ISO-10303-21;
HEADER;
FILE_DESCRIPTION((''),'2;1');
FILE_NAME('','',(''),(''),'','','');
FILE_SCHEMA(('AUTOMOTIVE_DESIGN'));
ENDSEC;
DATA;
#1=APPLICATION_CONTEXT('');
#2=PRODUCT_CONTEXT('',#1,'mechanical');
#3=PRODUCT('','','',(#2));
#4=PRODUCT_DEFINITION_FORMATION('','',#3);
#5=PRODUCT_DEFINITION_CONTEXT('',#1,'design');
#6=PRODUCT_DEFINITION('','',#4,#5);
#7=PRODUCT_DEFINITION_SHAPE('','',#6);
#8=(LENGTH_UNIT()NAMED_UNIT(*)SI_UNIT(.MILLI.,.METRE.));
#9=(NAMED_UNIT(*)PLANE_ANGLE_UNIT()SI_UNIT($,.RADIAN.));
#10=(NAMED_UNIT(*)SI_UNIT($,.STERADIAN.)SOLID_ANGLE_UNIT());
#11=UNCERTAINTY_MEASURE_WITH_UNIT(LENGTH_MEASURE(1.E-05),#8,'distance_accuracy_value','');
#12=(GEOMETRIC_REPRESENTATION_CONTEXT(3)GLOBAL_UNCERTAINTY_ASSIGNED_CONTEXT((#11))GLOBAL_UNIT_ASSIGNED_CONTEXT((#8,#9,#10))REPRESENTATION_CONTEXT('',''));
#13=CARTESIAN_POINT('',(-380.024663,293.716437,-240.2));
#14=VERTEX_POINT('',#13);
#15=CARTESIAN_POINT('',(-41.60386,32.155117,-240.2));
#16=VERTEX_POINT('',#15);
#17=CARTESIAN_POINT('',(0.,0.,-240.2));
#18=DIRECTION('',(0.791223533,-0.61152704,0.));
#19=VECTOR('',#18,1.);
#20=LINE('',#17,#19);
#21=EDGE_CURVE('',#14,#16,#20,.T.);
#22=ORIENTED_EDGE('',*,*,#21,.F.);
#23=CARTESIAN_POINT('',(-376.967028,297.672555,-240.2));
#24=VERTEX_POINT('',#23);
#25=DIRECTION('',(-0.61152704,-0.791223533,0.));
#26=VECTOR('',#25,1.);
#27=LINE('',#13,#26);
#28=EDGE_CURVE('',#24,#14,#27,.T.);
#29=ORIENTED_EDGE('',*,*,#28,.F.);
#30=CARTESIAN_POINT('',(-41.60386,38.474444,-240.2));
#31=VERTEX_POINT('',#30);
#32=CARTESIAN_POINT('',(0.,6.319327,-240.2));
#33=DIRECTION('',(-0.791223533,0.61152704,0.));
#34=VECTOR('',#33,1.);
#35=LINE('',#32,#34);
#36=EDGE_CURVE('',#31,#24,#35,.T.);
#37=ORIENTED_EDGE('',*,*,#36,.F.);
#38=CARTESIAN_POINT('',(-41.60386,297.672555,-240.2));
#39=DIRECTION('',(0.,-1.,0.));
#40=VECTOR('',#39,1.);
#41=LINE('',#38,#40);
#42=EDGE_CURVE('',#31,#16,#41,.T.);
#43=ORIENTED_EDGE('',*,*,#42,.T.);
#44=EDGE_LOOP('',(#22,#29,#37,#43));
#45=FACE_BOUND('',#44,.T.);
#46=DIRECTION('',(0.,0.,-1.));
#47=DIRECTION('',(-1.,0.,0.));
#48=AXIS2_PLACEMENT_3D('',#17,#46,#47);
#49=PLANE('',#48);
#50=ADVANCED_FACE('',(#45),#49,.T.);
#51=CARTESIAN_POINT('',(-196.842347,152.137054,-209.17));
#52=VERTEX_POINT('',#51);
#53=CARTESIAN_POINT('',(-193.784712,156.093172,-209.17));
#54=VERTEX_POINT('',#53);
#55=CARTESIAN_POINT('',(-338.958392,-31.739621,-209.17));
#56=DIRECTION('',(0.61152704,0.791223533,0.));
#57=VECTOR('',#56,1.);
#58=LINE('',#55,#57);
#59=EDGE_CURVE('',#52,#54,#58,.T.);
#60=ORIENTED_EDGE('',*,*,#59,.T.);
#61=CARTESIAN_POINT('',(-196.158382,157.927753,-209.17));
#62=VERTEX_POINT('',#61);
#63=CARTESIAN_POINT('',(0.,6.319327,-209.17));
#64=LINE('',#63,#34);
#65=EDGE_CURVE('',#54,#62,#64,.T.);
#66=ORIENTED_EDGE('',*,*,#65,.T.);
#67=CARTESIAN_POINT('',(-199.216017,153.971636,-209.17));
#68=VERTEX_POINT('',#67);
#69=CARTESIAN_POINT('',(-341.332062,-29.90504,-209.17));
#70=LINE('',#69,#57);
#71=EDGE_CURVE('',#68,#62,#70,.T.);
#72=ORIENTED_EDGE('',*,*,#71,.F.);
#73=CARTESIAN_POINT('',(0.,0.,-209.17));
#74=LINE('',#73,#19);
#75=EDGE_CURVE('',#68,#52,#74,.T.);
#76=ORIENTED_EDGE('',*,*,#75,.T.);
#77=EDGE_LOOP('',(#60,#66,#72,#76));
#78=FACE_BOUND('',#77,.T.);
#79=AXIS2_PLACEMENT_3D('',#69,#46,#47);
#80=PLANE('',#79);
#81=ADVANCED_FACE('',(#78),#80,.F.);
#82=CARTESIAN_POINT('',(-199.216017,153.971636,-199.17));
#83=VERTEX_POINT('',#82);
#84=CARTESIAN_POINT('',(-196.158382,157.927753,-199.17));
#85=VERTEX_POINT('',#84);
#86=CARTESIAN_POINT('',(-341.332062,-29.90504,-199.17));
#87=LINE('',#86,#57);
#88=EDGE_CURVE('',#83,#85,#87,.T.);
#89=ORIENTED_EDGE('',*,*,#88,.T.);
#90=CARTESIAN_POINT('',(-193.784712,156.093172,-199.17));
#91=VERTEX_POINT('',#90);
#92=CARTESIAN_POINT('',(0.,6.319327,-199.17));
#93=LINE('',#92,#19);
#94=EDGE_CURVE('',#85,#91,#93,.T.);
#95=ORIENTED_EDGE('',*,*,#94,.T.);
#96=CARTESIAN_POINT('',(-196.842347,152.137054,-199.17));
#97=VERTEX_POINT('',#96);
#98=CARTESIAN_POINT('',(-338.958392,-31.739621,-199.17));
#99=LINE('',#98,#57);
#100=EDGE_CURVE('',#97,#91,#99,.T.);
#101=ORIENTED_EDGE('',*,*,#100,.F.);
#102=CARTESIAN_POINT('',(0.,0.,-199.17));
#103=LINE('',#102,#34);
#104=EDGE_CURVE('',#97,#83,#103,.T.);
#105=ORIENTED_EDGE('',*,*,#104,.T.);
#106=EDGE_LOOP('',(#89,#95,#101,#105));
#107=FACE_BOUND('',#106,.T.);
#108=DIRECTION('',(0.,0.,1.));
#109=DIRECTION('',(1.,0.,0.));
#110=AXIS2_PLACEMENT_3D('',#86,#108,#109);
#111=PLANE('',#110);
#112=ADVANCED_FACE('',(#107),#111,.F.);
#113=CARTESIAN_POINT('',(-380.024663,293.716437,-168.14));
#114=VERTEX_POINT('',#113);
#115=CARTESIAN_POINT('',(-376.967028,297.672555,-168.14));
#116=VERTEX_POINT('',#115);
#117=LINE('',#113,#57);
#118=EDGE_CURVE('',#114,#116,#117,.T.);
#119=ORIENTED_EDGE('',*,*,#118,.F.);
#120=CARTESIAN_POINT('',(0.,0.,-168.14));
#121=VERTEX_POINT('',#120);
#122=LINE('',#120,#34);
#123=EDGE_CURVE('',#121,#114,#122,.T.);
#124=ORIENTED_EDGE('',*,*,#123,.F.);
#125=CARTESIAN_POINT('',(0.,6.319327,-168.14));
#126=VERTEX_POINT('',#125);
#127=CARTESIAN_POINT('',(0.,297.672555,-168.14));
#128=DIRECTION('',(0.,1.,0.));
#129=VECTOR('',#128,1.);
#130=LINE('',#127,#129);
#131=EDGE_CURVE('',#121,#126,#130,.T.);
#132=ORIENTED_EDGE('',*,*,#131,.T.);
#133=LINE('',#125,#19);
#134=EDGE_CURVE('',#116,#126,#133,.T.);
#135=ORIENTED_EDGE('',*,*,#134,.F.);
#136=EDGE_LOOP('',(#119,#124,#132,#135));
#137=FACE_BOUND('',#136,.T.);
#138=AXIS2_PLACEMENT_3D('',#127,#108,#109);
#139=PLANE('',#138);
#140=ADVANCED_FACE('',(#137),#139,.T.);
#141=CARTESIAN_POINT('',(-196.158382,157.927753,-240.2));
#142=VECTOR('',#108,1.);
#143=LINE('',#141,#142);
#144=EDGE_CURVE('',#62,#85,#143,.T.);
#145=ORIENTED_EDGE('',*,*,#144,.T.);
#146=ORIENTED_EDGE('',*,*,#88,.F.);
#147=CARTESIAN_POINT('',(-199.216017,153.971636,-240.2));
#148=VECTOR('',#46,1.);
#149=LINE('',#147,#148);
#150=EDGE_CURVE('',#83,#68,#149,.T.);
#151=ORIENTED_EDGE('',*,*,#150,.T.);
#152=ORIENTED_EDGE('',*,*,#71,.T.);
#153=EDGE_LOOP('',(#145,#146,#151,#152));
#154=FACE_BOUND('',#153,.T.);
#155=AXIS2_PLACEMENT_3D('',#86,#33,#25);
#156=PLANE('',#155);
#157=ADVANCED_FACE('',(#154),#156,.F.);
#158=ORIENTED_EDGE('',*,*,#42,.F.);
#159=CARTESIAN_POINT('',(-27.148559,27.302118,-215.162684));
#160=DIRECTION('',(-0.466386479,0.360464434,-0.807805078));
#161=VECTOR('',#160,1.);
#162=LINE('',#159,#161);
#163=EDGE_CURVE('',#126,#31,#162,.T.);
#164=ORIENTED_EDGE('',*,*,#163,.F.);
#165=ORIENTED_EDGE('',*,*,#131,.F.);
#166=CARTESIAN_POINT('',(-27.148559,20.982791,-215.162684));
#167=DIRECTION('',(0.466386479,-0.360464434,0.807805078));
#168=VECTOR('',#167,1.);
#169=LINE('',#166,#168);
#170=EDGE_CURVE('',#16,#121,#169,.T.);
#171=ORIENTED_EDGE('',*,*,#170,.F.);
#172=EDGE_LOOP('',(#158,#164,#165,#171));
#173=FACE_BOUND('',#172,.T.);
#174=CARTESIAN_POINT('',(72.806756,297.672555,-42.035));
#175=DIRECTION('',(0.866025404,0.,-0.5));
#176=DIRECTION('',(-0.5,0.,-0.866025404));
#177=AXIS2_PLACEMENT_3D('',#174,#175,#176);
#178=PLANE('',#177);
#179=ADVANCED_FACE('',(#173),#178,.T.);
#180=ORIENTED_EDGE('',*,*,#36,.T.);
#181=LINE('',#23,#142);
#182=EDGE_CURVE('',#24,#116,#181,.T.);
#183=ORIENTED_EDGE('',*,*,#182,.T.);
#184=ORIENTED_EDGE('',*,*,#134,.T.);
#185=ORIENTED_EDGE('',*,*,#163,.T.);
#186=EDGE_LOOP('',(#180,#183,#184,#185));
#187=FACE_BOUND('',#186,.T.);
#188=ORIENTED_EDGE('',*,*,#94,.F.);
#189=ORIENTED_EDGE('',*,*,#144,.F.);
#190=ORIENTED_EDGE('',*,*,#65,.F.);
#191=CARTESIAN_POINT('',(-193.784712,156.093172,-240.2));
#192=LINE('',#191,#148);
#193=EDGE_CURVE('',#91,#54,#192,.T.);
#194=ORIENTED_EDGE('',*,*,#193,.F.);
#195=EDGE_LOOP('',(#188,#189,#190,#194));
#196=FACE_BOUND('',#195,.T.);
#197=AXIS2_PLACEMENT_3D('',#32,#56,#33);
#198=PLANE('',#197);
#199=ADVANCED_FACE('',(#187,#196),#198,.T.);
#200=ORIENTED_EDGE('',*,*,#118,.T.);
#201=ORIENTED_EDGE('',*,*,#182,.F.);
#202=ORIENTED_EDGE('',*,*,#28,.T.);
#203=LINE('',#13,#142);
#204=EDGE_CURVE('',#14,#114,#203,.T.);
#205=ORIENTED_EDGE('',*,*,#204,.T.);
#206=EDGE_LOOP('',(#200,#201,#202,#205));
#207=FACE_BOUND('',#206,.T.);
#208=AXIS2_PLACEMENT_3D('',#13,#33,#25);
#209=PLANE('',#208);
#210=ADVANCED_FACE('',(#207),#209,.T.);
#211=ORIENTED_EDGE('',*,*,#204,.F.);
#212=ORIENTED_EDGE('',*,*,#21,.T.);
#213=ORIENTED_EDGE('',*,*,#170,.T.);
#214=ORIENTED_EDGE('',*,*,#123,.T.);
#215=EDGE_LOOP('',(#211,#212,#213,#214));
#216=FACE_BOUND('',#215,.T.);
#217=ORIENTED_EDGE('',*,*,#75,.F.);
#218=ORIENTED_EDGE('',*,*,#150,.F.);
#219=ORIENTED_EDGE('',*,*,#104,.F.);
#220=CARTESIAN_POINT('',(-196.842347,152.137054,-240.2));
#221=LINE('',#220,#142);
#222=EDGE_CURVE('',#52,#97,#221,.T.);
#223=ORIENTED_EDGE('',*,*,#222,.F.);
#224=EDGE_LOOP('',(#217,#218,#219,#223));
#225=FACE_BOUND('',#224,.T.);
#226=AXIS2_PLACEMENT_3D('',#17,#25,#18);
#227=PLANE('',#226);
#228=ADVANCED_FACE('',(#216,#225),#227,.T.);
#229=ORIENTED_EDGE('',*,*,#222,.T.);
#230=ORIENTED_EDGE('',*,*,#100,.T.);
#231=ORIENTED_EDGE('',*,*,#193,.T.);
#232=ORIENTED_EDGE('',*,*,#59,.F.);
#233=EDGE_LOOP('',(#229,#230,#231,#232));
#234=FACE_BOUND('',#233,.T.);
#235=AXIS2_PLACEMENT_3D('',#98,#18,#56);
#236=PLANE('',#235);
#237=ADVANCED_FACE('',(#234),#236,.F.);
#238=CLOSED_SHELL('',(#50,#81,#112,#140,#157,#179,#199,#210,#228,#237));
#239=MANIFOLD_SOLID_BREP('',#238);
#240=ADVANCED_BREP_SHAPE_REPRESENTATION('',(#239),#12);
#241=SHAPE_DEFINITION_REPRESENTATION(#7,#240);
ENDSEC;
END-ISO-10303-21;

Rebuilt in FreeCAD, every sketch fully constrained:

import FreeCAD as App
import Part
import Sketcher

V = App.Vector
Q = App.Units.Quantity


def add_polygon(sketch, points):
    """Adds a closed chain of lines whose ends are joined by coincident constraints."""
    first, n = sketch.GeometryCount, len(points)
    for a, b in zip(points, points[1:] + points[:1]):
        sketch.addGeometry(Part.LineSegment(App.Vector(*a, 0), App.Vector(*b, 0)), False)
    for i in range(n):
        sketch.addConstraint(Sketcher.Constraint("Coincident", first + i, 2, first + (i + 1) % n, 1))

doc = App.newDocument("Part")
body = doc.addObject("PartDesign::Body", "Body")

# Sketch on XY plane
sketch1 = body.newObject("Sketcher::SketchObject", "Sketch")
sketch1.AttachmentSupport = (doc.getObject("XY_Plane"), [""])
sketch1.MapMode = "FlatFace"
add_polygon(sketch1, [(0, 0), (380, 294), (377, 298), (0, 6), (-377, 298), (-380, 294)])  # lines 0-5
sketch1.addConstraint(Sketcher.Constraint("Coincident", 5, 2, -1, 1))
sketch1.addConstraint(Sketcher.Constraint("Symmetric", 1, 2, 3, 2, -2))
sketch1.addConstraint(Sketcher.Constraint("Symmetric", 0, 2, 4, 2, -2))
sketch1.addConstraint(Sketcher.Constraint("PointOnObject", 2, 2, -2))
sketch1.addConstraint(Sketcher.Constraint("Perpendicular", 0, 1))
sketch1.addConstraint(Sketcher.Constraint("Perpendicular", 1, 2))
sketch1.addConstraint(Sketcher.Constraint("Distance", 1, Q("5 mm")))
sketch1.addConstraint(Sketcher.Constraint("Angle", 0, Q("37.7 deg")))
sketch1.addConstraint(Sketcher.Constraint("Distance", 0, Q("480.3 mm")))
pad1 = body.newObject("PartDesign::Pad", "Pad")
pad1.Profile = sketch1
pad1.Length = 240.2
pad1.Reversed = True

# Sketch on XZ plane
sketch2 = body.newObject("Sketcher::SketchObject", "Sketch001")
sketch2.AttachmentSupport = (doc.getObject("XZ_Plane"), [""])
sketch2.MapMode = "FlatFace"
add_polygon(sketch2, [(-466, -326), (-466, 86), (466, 86), (466, -326)])  # lines 0-3
add_polygon(sketch2, [(380, -168), (-380, -168), (-380, -240), (380, -240)])  # lines 4-7
sketch2.addConstraint(Sketcher.Constraint("Vertical", 0))
sketch2.addConstraint(Sketcher.Constraint("Horizontal", 1))
sketch2.addConstraint(Sketcher.Constraint("Vertical", 2))
sketch2.addConstraint(Sketcher.Constraint("Horizontal", 3))
sketch2.addConstraint(Sketcher.Constraint("Horizontal", 4))
sketch2.addConstraint(Sketcher.Constraint("Vertical", 5))
sketch2.addConstraint(Sketcher.Constraint("Horizontal", 6))
sketch2.addConstraint(Sketcher.Constraint("Vertical", 7))
sketch2.addConstraint(Sketcher.Constraint("DistanceY", 5, 2, 5, 1, Q("72.06 mm")))
sketch2.addConstraint(Sketcher.Constraint("DistanceY", 5, 2, -1, 1, Q("240.2 mm")))
sketch2.addConstraint(Sketcher.Constraint("DistanceX", 1, 1, 1, 2, Q("932.224 mm")))
sketch2.addConstraint(Sketcher.Constraint("DistanceY", 0, 1, 0, 2, Q("412.374 mm")))
sketch2.addConstraint(Sketcher.Constraint("DistanceX", 0, 2, -1, 1, Q("466.112 mm")))
sketch2.addConstraint(Sketcher.Constraint("DistanceY", -1, 1, 0, 2, Q("86.087 mm")))
sketch2.addConstraint(Sketcher.Constraint("DistanceX", 4, 2, 4, 1, Q("760.049326 mm")))
sketch2.addConstraint(Sketcher.Constraint("DistanceX", 4, 2, -1, 1, Q("380.024663 mm")))
pocket1 = body.newObject("PartDesign::Pocket", "Pocket")
pocket1.Profile = sketch2
pocket1.Type = "ThroughAll"
pocket1.Midplane = True

# Sketch on XZ plane
sketch3 = body.newObject("Sketcher::SketchObject", "Sketch002")
sketch3.AttachmentSupport = (doc.getObject("XZ_Plane"), [""])
sketch3.MapMode = "FlatFace"
add_polygon(sketch3, [(0, -168), (380, -168), (380, -240), (-42, -240)])  # lines 0-3
sketch3.addConstraint(Sketcher.Constraint("Horizontal", 0))
sketch3.addConstraint(Sketcher.Constraint("Vertical", 1))
sketch3.addConstraint(Sketcher.Constraint("Horizontal", 2))
sketch3.addConstraint(Sketcher.Constraint("PointOnObject", 3, 2, -2))
sketch3.addConstraint(Sketcher.Constraint("Angle", 3, Q("60 deg")))
sketch3.addConstraint(Sketcher.Constraint("DistanceY", 1, 2, 1, 1, Q("72.06 mm")))
sketch3.addConstraint(Sketcher.Constraint("DistanceY", 1, 2, -1, 1, Q("240.2 mm")))
sketch3.addConstraint(Sketcher.Constraint("DistanceX", 0, 1, 0, 2, Q("380.024663 mm")))
pocket2 = body.newObject("PartDesign::Pocket", "Pocket001")
pocket2.Profile = sketch3
pocket2.Type = "ThroughAll"

# Sketch on an angled plane
sketch4 = body.newObject("Sketcher::SketchObject", "Sketch003")
sketch4.Placement = App.Placement(V(3.057635, 3.956118, 0), App.Rotation(V(0.791223533, -0.61152704, 0), V(0, 0, -1), V(0.61152704, 0.791223533, 0), "ZXY"))
add_polygon(sketch4, [(-251.8, 209.2), (-251.8, 199.2), (-248.8, 199.2), (-248.8, 209.2)])  # lines 0-3
sketch4.addConstraint(Sketcher.Constraint("Vertical", 0))
sketch4.addConstraint(Sketcher.Constraint("Horizontal", 1))
sketch4.addConstraint(Sketcher.Constraint("Vertical", 2))
sketch4.addConstraint(Sketcher.Constraint("Horizontal", 3))
sketch4.addConstraint(Sketcher.Constraint("DistanceX", 1, 1, 1, 2, Q("3 mm")))
sketch4.addConstraint(Sketcher.Constraint("DistanceY", 0, 2, 0, 1, Q("10 mm")))
sketch4.addConstraint(Sketcher.Constraint("DistanceY", -1, 1, 0, 2, Q("199.17 mm")))
sketch4.addConstraint(Sketcher.Constraint("DistanceX", 0, 2, -1, 1, Q("251.78222 mm")))
pocket3 = body.newObject("PartDesign::Pocket", "Pocket002")
pocket3.Profile = sketch4
pocket3.Type = "ThroughAll"
pocket3.Midplane = True

doc.recompute()
